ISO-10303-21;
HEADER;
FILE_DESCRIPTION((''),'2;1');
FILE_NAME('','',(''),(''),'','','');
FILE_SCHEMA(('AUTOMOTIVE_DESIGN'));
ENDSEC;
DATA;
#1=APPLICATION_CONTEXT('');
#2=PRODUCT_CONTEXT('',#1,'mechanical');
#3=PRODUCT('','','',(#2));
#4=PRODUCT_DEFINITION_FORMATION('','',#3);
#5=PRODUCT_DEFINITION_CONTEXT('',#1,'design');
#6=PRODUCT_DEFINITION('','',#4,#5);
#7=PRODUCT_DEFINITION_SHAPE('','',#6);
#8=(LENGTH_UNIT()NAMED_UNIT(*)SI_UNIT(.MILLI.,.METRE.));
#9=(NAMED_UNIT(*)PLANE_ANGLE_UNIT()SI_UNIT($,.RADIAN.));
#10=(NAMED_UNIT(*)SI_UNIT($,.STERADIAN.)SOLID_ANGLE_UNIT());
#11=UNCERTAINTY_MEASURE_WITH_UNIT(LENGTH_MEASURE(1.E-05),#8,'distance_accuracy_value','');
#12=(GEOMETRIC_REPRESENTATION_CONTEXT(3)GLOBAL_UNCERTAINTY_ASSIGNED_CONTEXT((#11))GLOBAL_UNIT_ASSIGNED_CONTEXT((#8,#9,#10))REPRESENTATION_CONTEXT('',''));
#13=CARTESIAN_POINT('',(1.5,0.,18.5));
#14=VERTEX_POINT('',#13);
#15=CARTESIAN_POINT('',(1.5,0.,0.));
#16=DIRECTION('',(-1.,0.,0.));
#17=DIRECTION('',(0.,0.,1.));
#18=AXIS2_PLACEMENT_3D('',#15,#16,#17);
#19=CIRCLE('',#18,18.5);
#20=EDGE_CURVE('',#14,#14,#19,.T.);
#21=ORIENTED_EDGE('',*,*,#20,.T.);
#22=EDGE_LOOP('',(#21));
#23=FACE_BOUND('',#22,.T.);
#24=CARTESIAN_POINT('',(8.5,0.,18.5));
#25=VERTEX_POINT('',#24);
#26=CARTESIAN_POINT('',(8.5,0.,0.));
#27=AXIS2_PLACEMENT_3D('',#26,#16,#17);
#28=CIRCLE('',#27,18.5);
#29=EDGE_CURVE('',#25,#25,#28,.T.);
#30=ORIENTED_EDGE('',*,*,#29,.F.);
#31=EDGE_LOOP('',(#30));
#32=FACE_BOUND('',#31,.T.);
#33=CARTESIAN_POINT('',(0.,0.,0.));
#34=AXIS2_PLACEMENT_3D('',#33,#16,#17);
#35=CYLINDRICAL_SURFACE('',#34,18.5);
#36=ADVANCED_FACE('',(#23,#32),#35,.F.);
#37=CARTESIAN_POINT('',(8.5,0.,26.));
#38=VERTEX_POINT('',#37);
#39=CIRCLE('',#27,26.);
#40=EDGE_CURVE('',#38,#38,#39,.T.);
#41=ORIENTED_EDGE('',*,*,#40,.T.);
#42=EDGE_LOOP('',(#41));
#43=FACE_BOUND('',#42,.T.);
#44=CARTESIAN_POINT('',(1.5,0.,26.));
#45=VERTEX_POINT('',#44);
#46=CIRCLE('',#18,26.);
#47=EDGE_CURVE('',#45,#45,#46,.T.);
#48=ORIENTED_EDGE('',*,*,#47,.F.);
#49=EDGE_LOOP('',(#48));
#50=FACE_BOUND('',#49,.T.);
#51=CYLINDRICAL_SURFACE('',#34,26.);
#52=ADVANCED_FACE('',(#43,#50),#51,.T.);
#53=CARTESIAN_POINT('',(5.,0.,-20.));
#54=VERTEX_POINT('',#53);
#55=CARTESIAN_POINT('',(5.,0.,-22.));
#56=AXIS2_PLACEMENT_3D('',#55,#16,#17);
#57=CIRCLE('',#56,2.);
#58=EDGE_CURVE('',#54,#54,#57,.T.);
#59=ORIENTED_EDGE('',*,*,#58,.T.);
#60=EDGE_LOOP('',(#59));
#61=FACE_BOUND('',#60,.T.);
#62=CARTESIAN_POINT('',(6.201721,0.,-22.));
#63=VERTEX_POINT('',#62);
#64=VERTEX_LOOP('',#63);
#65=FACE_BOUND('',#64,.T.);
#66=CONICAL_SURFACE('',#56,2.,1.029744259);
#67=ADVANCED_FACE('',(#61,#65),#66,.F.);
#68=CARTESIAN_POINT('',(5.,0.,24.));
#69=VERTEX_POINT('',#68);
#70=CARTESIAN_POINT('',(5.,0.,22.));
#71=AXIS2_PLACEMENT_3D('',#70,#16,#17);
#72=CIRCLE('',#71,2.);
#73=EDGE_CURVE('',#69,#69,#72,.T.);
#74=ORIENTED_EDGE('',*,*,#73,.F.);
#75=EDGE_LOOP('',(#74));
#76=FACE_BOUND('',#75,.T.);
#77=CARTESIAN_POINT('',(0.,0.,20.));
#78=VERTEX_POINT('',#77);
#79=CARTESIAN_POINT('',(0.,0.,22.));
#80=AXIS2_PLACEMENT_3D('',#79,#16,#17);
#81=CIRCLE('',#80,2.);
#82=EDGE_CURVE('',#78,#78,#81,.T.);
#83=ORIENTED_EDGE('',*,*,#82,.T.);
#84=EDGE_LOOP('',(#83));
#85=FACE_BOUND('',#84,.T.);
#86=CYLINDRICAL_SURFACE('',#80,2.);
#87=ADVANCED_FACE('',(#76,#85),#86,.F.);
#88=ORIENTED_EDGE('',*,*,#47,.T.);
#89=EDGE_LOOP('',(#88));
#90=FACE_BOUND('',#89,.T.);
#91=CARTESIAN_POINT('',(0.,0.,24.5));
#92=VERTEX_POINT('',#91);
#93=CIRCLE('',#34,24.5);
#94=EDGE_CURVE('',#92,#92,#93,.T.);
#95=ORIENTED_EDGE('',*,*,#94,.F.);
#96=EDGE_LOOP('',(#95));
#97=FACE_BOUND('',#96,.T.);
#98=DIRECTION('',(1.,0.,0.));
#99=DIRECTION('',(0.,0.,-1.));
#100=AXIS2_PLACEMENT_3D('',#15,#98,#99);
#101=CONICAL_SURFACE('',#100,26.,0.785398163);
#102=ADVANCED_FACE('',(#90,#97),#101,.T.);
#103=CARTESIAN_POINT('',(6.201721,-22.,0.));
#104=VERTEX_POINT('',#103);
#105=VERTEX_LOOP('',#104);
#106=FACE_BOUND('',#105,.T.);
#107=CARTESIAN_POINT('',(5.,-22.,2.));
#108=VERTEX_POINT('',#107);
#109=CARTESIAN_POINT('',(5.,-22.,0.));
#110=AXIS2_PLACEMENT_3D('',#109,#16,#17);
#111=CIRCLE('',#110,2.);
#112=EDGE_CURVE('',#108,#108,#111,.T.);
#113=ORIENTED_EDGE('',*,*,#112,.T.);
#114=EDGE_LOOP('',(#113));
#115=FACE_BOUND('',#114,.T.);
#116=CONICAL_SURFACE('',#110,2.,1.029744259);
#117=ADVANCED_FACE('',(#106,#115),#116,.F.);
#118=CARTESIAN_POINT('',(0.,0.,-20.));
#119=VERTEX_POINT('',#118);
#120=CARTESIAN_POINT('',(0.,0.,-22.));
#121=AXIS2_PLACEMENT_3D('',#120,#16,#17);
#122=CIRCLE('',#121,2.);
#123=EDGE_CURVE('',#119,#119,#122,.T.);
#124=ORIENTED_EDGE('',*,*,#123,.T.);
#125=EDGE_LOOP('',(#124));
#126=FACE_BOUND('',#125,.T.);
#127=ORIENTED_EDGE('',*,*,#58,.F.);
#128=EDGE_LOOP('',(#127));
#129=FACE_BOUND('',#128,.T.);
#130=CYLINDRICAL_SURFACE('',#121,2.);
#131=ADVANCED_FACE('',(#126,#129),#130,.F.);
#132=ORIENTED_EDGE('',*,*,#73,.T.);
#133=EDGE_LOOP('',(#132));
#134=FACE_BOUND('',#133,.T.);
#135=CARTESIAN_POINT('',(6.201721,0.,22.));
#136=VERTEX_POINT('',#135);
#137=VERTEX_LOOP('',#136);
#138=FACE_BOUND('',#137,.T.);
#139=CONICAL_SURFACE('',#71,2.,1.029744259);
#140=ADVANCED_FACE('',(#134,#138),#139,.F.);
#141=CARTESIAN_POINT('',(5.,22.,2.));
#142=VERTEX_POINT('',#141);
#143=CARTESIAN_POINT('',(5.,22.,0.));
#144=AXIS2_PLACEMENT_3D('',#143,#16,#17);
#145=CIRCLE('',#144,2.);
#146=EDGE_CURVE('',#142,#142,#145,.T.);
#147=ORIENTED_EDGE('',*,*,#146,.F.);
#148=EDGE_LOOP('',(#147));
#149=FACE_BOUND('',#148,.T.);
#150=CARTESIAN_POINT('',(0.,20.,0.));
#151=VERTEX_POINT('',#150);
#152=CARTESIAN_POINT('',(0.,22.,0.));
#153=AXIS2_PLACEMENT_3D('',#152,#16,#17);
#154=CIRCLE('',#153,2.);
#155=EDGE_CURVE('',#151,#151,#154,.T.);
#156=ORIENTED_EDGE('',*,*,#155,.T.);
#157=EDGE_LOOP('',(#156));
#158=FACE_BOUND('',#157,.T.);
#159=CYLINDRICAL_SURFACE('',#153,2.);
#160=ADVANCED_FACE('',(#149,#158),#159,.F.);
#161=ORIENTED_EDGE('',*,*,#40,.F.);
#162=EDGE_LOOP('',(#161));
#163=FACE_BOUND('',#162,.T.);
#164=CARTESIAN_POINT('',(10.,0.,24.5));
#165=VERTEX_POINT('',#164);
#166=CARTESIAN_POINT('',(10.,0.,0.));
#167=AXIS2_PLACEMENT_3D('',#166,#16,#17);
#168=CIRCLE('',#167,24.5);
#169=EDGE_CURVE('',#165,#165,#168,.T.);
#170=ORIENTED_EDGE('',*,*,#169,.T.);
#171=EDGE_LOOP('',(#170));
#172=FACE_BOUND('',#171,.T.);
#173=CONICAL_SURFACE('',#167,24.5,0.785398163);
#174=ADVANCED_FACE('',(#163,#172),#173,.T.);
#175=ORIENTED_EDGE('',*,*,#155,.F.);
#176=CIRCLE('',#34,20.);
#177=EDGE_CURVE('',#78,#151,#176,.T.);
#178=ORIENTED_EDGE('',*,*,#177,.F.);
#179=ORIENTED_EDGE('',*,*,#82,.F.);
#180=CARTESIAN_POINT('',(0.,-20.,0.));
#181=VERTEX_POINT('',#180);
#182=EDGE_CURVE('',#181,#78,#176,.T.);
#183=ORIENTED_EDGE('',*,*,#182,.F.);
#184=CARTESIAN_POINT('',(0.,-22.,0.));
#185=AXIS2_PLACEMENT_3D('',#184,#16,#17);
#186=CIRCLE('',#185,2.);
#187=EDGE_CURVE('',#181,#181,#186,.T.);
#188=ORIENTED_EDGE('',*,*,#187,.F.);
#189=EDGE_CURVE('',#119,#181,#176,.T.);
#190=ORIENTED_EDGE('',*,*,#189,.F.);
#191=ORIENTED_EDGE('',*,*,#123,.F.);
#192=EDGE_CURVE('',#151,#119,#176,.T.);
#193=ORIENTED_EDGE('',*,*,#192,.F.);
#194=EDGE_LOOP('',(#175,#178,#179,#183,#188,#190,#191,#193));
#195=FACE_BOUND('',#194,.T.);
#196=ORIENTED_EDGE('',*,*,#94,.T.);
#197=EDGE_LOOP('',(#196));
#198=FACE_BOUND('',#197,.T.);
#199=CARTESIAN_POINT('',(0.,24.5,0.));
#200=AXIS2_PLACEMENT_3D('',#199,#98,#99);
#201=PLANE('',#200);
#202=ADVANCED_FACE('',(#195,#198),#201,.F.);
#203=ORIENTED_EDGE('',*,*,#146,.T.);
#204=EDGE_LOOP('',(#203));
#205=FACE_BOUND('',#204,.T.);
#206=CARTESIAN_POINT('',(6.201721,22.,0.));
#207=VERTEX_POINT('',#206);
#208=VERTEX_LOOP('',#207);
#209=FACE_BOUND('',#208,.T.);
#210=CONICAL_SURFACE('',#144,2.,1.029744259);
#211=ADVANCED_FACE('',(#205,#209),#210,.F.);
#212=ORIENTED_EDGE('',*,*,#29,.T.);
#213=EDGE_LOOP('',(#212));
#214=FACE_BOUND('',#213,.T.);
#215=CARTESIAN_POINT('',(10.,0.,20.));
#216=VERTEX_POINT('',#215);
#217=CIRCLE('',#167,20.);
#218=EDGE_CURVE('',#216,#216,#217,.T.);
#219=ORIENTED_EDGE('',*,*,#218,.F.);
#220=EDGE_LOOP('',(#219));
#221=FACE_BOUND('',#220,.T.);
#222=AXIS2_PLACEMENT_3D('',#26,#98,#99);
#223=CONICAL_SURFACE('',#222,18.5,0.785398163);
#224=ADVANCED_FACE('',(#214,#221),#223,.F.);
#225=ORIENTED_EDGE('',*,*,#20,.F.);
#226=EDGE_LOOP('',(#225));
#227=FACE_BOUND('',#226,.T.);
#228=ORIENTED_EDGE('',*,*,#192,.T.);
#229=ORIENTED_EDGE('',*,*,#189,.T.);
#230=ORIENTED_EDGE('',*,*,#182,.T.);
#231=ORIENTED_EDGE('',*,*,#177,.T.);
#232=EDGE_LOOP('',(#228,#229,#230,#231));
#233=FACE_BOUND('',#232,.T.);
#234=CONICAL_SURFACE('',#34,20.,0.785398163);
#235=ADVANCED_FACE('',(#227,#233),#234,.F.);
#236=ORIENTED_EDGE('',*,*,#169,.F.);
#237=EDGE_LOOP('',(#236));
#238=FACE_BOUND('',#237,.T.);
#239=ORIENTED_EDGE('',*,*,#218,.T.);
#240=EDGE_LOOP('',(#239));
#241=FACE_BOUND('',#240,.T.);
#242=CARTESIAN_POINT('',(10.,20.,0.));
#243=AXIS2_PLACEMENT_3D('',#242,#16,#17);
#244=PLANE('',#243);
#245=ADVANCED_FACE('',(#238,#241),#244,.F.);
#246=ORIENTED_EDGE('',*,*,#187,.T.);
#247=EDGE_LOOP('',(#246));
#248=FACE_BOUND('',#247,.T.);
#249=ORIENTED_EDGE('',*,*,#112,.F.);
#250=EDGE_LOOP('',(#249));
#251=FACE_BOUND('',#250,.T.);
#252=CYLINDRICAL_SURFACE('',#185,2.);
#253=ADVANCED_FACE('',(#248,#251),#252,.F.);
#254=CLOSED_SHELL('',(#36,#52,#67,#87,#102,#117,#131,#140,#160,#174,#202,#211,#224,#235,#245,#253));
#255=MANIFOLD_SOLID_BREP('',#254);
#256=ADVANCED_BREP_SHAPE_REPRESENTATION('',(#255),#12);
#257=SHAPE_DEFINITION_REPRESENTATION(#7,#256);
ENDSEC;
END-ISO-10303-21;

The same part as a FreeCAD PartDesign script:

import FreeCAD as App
import Part
import Sketcher
Q = App.Units.Quantity


def add_polygon(sketch, points):
    """Adds a closed chain of lines whose ends are joined by coincident constraints."""
    first, n = sketch.GeometryCount, len(points)
    for a, b in zip(points, points[1:] + points[:1]):
        sketch.addGeometry(Part.LineSegment(App.Vector(*a, 0), App.Vector(*b, 0)), False)
    for i in range(n):
        sketch.addConstraint(Sketcher.Constraint("Coincident", first + i, 2, first + (i + 1) % n, 1))

doc = App.newDocument("Part")
body = doc.addObject("PartDesign::Body", "Body")

sketch1 = body.newObject("Sketcher::SketchObject", "Sketch")
sketch1.AttachmentSupport = (doc.getObject("XY_Plane"), [""])
sketch1.MapMode = "FlatFace"
add_polygon(sketch1, [(1.5, 18.5), (8.5, 18.5), (10, 20), (10, 24.5), (8.5, 26), (1.5, 26), (0, 24.5), (0, 20)])
sketch1.addConstraint([
    Sketcher.Constraint("Horizontal", 0),
    Sketcher.Constraint("Vertical", 2),
    Sketcher.Constraint("Horizontal", 4),
    Sketcher.Constraint("Vertical", 6),
    Sketcher.Constraint("PointOnObject", 5, 2, -2),
    Sketcher.Constraint("Perpendicular", 1, 3),
    Sketcher.Constraint("Perpendicular", 3, 5),
    Sketcher.Constraint("Perpendicular", 5, 7),
    Sketcher.Constraint("Horizontal", 2, 2, 5, 2),
    Sketcher.Constraint("Horizontal", 1, 2, 6, 2),
    Sketcher.Constraint("Vertical", 0, 2, 3, 2),
    Sketcher.Constraint("Vertical", 4, 2, 7, 2),
    Sketcher.Constraint("DistanceX", 0, 1, 0, 2, Q("7 mm")),
    Sketcher.Constraint("DistanceY", 2, 1, 2, 2, Q("4.5 mm")),
    Sketcher.Constraint("DistanceX", -1, 1, 1, 2, Q("10 mm")),
    Sketcher.Constraint("DistanceY", -1, 1, 1, 2, Q("20 mm")),
])
revolution = body.newObject("PartDesign::Revolution", "Revolution")
revolution.Profile = sketch1
revolution.ReferenceAxis = (sketch1, ["H_Axis"])
revolution.Angle = 360

sketch2 = body.newObject("Sketcher::SketchObject", "Sketch001")
sketch2.AttachmentSupport = (doc.getObject("YZ_Plane"), [""])
sketch2.MapMode = "FlatFace"
sketch2.addGeometry([
    Part.Circle(App.Vector(0, -22, 0), App.Vector(0, 0, 1), 2),
    Part.Circle(App.Vector(22, 0, 0), App.Vector(0, 0, 1), 2),
    Part.Circle(App.Vector(0, 22, 0), App.Vector(0, 0, 1), 2),
    Part.Circle(App.Vector(-22, 0, 0), App.Vector(0, 0, 1), 2),
], False)
sketch2.addConstraint([
    Sketcher.Constraint("Equal", 0, 1),
    Sketcher.Constraint("Equal", 1, 2),
    Sketcher.Constraint("Equal", 2, 3),
    Sketcher.Constraint("Symmetric", 0, 3, 2, 3, -1, 1),
    Sketcher.Constraint("Symmetric", 1, 3, 3, 3, -1, 1),
    Sketcher.Constraint("PointOnObject", 0, 3, -2),
    Sketcher.Constraint("PointOnObject", 1, 3, -1),
    Sketcher.Constraint("Diameter", 0, Q("4 mm")),
    Sketcher.Constraint("DistanceY", 0, 3, -1, 1, Q("22 mm")),
    Sketcher.Constraint("DistanceX", -1, 1, 1, 3, Q("22 mm")),
])
doc.recompute()
hole = body.newObject("PartDesign::Hole", "Hole")
hole.Profile = sketch2
hole.ThreadType = "None"
hole.Diameter = 4
hole.DepthType = "Dimension"
hole.Depth = 5
hole.DrillPoint = "Angled"
hole.DrillPointAngle = 118
hole.Reversed = True

doc.recompute()
